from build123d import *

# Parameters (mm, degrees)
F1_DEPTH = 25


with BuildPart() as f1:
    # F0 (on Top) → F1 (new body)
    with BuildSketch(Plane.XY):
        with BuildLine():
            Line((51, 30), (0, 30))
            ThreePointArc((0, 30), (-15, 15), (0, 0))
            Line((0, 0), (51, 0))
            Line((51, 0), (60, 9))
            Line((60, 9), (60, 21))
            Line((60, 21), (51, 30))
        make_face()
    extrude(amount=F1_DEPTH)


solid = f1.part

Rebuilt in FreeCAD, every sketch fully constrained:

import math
import FreeCAD as App
import Part
import Sketcher
Q = App.Units.Quantity

doc = App.newDocument("Part")
body = doc.addObject("PartDesign::Body", "Body")

# Sketch on XY plane
sketch1 = body.newObject("Sketcher::SketchObject", "Sketch")
sketch1.AttachmentSupport = (doc.getObject("XY_Plane"), [""])
sketch1.MapMode = "FlatFace"
sketch1.addGeometry([
    Part.LineSegment(App.Vector(51, 30, 0), App.Vector(0, 30, 0)),  # 0
    Part.ArcOfCircle(Part.Circle(App.Vector(0, 15, 0), App.Vector(0, 0, 1), 15), math.radians(90), math.radians(270)),  # 1
    Part.LineSegment(App.Vector(0, 0, 0), App.Vector(51, 0, 0)),  # 2
    Part.LineSegment(App.Vector(51, 0, 0), App.Vector(60, 9, 0)),  # 3
    Part.LineSegment(App.Vector(60, 9, 0), App.Vector(60, 21, 0)),  # 4
    Part.LineSegment(App.Vector(60, 21, 0), App.Vector(51, 30, 0)),  # 5
], False)
sketch1.addConstraint([
    Sketcher.Constraint("Tangent", 0, 2, 1, 1),
    Sketcher.Constraint("Tangent", 1, 2, 2, 1),
    Sketcher.Constraint("Coincident", 2, 2, 3, 1),
    Sketcher.Constraint("Coincident", 3, 2, 4, 1),
    Sketcher.Constraint("Coincident", 4, 2, 5, 1),
    Sketcher.Constraint("Coincident", 5, 2, 0, 1),
    Sketcher.Constraint("Horizontal", 0),
    Sketcher.Constraint("Horizontal", 2),
    Sketcher.Constraint("Vertical", 4),
    Sketcher.Constraint("Coincident", 1, 2, -1, 1),
    Sketcher.Constraint("Perpendicular", 3, 5),
    Sketcher.Constraint("Vertical", 2, 2, 5, 2),
    Sketcher.Constraint("Equal", 3, 5),
    Sketcher.Constraint("Radius", 1, Q("15 mm")),
    Sketcher.Constraint("DistanceX", 0, 2, 0, 1, Q("51 mm")),
    Sketcher.Constraint("DistanceY", 4, 1, 4, 2, Q("12 mm")),
])
pad1 = body.newObject("PartDesign::Pad", "Pad")
pad1.Profile = sketch1
pad1.Length = 25

doc.recompute()
